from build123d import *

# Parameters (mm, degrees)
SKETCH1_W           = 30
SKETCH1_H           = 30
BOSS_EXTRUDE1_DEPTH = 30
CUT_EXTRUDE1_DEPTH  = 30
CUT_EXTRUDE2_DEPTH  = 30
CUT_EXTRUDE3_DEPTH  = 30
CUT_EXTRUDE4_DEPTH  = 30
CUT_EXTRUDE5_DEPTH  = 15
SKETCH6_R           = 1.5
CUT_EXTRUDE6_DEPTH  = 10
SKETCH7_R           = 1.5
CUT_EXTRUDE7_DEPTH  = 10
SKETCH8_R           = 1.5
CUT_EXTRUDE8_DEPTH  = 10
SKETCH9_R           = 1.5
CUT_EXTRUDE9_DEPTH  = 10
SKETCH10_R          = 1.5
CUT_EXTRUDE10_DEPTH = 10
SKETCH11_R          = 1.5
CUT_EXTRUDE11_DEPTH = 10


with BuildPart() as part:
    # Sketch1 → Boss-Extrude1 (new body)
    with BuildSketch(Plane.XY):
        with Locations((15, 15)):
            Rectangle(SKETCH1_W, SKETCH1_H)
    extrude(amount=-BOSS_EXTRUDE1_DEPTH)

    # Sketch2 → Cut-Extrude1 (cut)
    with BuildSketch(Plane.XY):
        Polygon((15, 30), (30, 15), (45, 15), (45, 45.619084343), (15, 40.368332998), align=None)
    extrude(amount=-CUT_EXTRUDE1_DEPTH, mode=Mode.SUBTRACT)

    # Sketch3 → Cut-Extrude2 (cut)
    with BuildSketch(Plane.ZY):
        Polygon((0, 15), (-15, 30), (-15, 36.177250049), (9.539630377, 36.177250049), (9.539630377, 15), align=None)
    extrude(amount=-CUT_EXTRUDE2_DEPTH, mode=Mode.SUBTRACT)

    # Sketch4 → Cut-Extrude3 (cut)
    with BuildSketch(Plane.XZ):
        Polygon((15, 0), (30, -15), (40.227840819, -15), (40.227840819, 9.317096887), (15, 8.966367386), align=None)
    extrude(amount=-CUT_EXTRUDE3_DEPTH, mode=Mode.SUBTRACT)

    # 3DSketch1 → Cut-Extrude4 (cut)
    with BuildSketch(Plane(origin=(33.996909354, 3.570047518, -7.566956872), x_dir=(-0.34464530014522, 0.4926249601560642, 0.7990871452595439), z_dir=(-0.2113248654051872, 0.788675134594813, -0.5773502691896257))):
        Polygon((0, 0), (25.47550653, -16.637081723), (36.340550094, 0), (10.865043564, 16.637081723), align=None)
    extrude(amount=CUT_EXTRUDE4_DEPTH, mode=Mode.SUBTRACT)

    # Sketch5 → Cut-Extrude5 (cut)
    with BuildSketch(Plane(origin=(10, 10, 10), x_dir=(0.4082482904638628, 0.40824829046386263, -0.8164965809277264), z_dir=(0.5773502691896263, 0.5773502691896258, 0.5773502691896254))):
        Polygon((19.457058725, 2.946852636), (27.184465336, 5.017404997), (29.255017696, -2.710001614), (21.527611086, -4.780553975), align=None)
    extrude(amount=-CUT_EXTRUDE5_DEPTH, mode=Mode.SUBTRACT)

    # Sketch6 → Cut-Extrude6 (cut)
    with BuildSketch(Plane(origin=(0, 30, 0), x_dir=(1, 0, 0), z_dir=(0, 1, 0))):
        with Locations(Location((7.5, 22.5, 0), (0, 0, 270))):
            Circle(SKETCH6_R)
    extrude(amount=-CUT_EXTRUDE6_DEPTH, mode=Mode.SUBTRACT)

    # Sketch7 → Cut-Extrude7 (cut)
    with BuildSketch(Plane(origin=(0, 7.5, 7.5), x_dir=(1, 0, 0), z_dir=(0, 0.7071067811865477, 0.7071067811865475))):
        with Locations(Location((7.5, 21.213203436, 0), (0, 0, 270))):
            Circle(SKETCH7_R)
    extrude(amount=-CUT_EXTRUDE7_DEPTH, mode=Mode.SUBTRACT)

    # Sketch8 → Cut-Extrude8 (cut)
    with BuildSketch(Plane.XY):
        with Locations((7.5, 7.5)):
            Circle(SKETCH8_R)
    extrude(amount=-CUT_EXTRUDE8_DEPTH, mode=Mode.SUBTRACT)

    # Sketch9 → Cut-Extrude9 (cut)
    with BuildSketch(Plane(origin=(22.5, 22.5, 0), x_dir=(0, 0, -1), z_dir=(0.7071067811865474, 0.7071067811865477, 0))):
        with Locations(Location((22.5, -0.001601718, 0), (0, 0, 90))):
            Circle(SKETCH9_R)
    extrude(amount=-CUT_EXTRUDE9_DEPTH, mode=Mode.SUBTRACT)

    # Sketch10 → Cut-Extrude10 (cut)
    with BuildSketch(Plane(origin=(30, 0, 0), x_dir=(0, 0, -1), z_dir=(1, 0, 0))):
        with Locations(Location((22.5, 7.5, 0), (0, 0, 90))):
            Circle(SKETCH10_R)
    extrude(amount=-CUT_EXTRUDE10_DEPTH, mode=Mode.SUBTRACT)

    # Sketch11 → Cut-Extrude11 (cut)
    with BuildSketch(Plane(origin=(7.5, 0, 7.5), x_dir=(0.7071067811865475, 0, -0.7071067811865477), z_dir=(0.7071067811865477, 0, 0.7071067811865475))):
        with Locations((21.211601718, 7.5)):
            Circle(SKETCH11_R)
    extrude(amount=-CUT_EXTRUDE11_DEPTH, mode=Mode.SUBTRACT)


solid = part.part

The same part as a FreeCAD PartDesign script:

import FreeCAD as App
import Part
import Sketcher
from FreeCAD import Vector
Q = App.Units.Quantity

doc = App.newDocument("Part")
body = doc.addObject("PartDesign::Body", "Body")

sketch1 = body.newObject("Sketcher::SketchObject", "Sketch")
sketch1.AttachmentSupport = (doc.getObject("XY_Plane"), [""])
sketch1.MapMode = "FlatFace"
sketch1.addGeometry(Part.LineSegment(Vector(0, 30, 0), Vector(0, 0, 0)), False)
sketch1.addGeometry(Part.LineSegment(Vector(0, 0, 0), Vector(30, 0, 0)), False)
sketch1.addGeometry(Part.LineSegment(Vector(30, 0, 0), Vector(30, 30, 0)), False)
sketch1.addGeometry(Part.LineSegment(Vector(30, 30, 0), Vector(0, 30, 0)), False)
sketch1.addConstraint(Sketcher.Constraint("Coincident", 0, 2, 1, 1))
sketch1.addConstraint(Sketcher.Constraint("Coincident", 1, 2, 2, 1))
sketch1.addConstraint(Sketcher.Constraint("Coincident", 2, 2, 3, 1))
sketch1.addConstraint(Sketcher.Constraint("Coincident", 3, 2, 0, 1))
sketch1.addConstraint(Sketcher.Constraint("Vertical", 0))
sketch1.addConstraint(Sketcher.Constraint("Horizontal", 1))
sketch1.addConstraint(Sketcher.Constraint("Vertical", 2))
sketch1.addConstraint(Sketcher.Constraint("Horizontal", 3))
sketch1.addConstraint(Sketcher.Constraint("Coincident", 0, 2, -1, 1))
sketch1.addConstraint(Sketcher.Constraint("Equal", 3, 0))
sketch1.addConstraint(Sketcher.Constraint("DistanceX", 1, 1, 1, 2, 30.0))
pad1 = body.newObject("PartDesign::Pad", "Pad")
pad1.Profile = sketch1
pad1.Length = 30
pad1.Reversed = True

sketch2 = body.newObject("Sketcher::SketchObject", "Sketch001")
sketch2.AttachmentSupport = (doc.getObject("XY_Plane"), [""])
sketch2.MapMode = "FlatFace"
sketch2.addGeometry(Part.LineSegment(Vector(15, 30, 0), Vector(30, 15, 0)), False)
sketch2.addGeometry(Part.LineSegment(Vector(30, 15, 0), Vector(45, 15, 0)), False)
sketch2.addGeometry(Part.LineSegment(Vector(45, 15, 0), Vector(45, 46, 0)), False)
sketch2.addGeometry(Part.LineSegment(Vector(45, 46, 0), Vector(15, 40, 0)), False)
sketch2.addGeometry(Part.LineSegment(Vector(15, 40, 0), Vector(15, 30, 0)), False)
sketch2.addConstraint(Sketcher.Constraint("Coincident", 0, 2, 1, 1))
sketch2.addConstraint(Sketcher.Constraint("Coincident", 1, 2, 2, 1))
sketch2.addConstraint(Sketcher.Constraint("Coincident", 2, 2, 3, 1))
sketch2.addConstraint(Sketcher.Constraint("Coincident", 3, 2, 4, 1))
sketch2.addConstraint(Sketcher.Constraint("Coincident", 4, 2, 0, 1))
sketch2.addConstraint(Sketcher.Constraint("Horizontal", 1))
sketch2.addConstraint(Sketcher.Constraint("Vertical", 2))
sketch2.addConstraint(Sketcher.Constraint("Vertical", 4))
sketch2.addConstraint(Sketcher.Constraint("DistanceX", 1, 1, 1, 2, 15.0))
sketch2.addConstraint(Sketcher.Constraint("Angle", 0, Q("-45 deg")))
sketch2.addConstraint(Sketcher.Constraint("DistanceX", -1, 1, 0, 2, 30.0))
sketch2.addConstraint(Sketcher.Constraint("DistanceY", -1, 1, 0, 2, 15.0))
sketch2.addConstraint(Sketcher.Constraint("DistanceX", -1, 1, 3, 2, 15.0))
sketch2.addConstraint(Sketcher.Constraint("Distance", 3, 30.45604))
sketch2.addConstraint(Sketcher.Constraint("DistanceY", 2, 1, 2, 2, 30.619084))
pocket1 = body.newObject("PartDesign::Pocket", "Pocket")
pocket1.Profile = sketch2
pocket1.Length = 30

sketch3 = body.newObject("Sketcher::SketchObject", "Sketch002")
sketch3.AttachmentSupport = (doc.getObject("YZ_Plane"), [""])
sketch3.MapMode = "FlatFace"
sketch3.addGeometry(Part.LineSegment(Vector(30, -15, 0), Vector(15, 0, 0)), False)
sketch3.addGeometry(Part.LineSegment(Vector(15, 0, 0), Vector(15, 10, 0)), False)
sketch3.addGeometry(Part.LineSegment(Vector(15, 10, 0), Vector(36, 10, 0)), False)
sketch3.addGeometry(Part.LineSegment(Vector(36, 10, 0), Vector(36, -15, 0)), False)
sketch3.addGeometry(Part.LineSegment(Vector(36, -15, 0), Vector(30, -15, 0)), False)
sketch3.addConstraint(Sketcher.Constraint("Coincident", 0, 2, 1, 1))
sketch3.addConstraint(Sketcher.Constraint("Coincident", 1, 2, 2, 1))
sketch3.addConstraint(Sketcher.Constraint("Coincident", 2, 2, 3, 1))
sketch3.addConstraint(Sketcher.Constraint("Coincident", 3, 2, 4, 1))
sketch3.addConstraint(Sketcher.Constraint("Coincident", 4, 2, 0, 1))
sketch3.addConstraint(Sketcher.Constraint("Vertical", 1))
sketch3.addConstraint(Sketcher.Constraint("Horizontal", 2))
sketch3.addConstraint(Sketcher.Constraint("Vertical", 3))
sketch3.addConstraint(Sketcher.Constraint("Horizontal", 4))
sketch3.addConstraint(Sketcher.Constraint("PointOnObject", 0, 2, -1))
sketch3.addConstraint(Sketcher.Constraint("Angle", 0, Q("135 deg")))
sketch3.addConstraint(Sketcher.Constraint("DistanceX", -1, 1, 0, 2, 15.0))
sketch3.addConstraint(Sketcher.Constraint("DistanceY", 3, 2, -1, 1, 15.0))
sketch3.addConstraint(Sketcher.Constraint("DistanceX", 2, 1, 2, 2, 21.17725))
sketch3.addConstraint(Sketcher.Constraint("DistanceY", 1, 1, 1, 2, 9.53963))
pocket2 = body.newObject("PartDesign::Pocket", "Pocket001")
pocket2.Profile = sketch3
pocket2.Length = 30
pocket2.Reversed = True

sketch4 = body.newObject("Sketcher::SketchObject", "Sketch003")
sketch4.AttachmentSupport = (doc.getObject("XZ_Plane"), [""])
sketch4.MapMode = "FlatFace"
sketch4.addGeometry(Part.LineSegment(Vector(15, 0, 0), Vector(30, -15, 0)), False)
sketch4.addGeometry(Part.LineSegment(Vector(30, -15, 0), Vector(40.227841, -15, 0)), False)
sketch4.addGeometry(Part.LineSegment(Vector(40.227841, -15, 0), Vector(40.227841, 9.317097, 0)), False)
sketch4.addGeometry(Part.LineSegment(Vector(40.227841, 9.317097, 0), Vector(15, 8.966367, 0)), False)
sketch4.addGeometry(Part.LineSegment(Vector(15, 8.966367, 0), Vector(15, 0, 0)), False)
sketch4.addConstraint(Sketcher.Constraint("Coincident", 0, 2, 1, 1))
sketch4.addConstraint(Sketcher.Constraint("Coincident", 1, 2, 2, 1))
sketch4.addConstraint(Sketcher.Constraint("Coincident", 2, 2, 3, 1))
sketch4.addConstraint(Sketcher.Constraint("Coincident", 3, 2, 4, 1))
sketch4.addConstraint(Sketcher.Constraint("Coincident", 4, 2, 0, 1))
sketch4.addConstraint(Sketcher.Constraint("Horizontal", 1))
sketch4.addConstraint(Sketcher.Constraint("Vertical", 2))
sketch4.addConstraint(Sketcher.Constraint("Vertical", 4))
sketch4.addConstraint(Sketcher.Constraint("PointOnObject", 4, 2, -1))
sketch4.addConstraint(Sketcher.Constraint("Angle", 0, Q("-45 deg")))
sketch4.addConstraint(Sketcher.Constraint("DistanceX", -1, 1, 0, 2, 30.0))
sketch4.addConstraint(Sketcher.Constraint("DistanceY", 0, 2, -1, 1, 15.0))
sketch4.addConstraint(Sketcher.Constraint("DistanceX", 1, 1, 1, 2, 10.227841))
sketch4.addConstraint(Sketcher.Constraint("Distance", 3, 25.230279))
sketch4.addConstraint(Sketcher.Constraint("DistanceY", 2, 1, 2, 2, 24.317097))
pocket3 = body.newObject("PartDesign::Pocket", "Pocket002")
pocket3.Profile = sketch4
pocket3.Length = 30

sketch5 = body.newObject("Sketcher::SketchObject", "Sketch004")
sketch5.Placement = App.Placement(Vector(33.996909, 3.570048, -7.566957), App.Rotation(Vector(-0.3446453, 0.49262496, 0.799087145), Vector(0.914637315, 0.36784804, 0.167709275), Vector(-0.211324865, 0.788675135, -0.577350269), "ZXY"))
sketch5.addGeometry(Part.LineSegment(Vector(0, 0, 0), Vector(25, -17, 0)), False)
sketch5.addGeometry(Part.LineSegment(Vector(25, -17, 0), Vector(36, 0, 0)), False)
sketch5.addGeometry(Part.LineSegment(Vector(36, 0, 0), Vector(11, 17, 0)), False)
sketch5.addGeometry(Part.LineSegment(Vector(11, 17, 0), Vector(0, 0, 0)), False)
sketch5.addConstraint(Sketcher.Constraint("Coincident", 0, 2, 1, 1))
sketch5.addConstraint(Sketcher.Constraint("Coincident", 1, 2, 2, 1))
sketch5.addConstraint(Sketcher.Constraint("Coincident", 2, 2, 3, 1))
sketch5.addConstraint(Sketcher.Constraint("Coincident", 3, 2, 0, 1))
sketch5.addConstraint(Sketcher.Constraint("Coincident", 3, 2, -1, 1))
sketch5.addConstraint(Sketcher.Constraint("PointOnObject", 1, 2, -1))
sketch5.addConstraint(Sketcher.Constraint("Perpendicular", 0, 1))
sketch5.addConstraint(Sketcher.Constraint("Perpendicular", 1, 2))
sketch5.addConstraint(Sketcher.Constraint("Perpendicular", 2, 3))
sketch5.addConstraint(Sketcher.Constraint("Distance", 0, 30.426862))
sketch5.addConstraint(Sketcher.Constraint("DistanceY", 0, 2, -1, 1, 16.637082))
pocket4 = body.newObject("PartDesign::Pocket", "Pocket003")
pocket4.Profile = sketch5
pocket4.Length = 30
pocket4.Reversed = True

sketch6 = body.newObject("Sketcher::SketchObject", "Sketch005")
sketch6.Placement = App.Placement(Vector(10, 10, 10), App.Rotation(Vector(0.40824829, 0.40824829, -0.816496581), Vector(-0.707106781, 0.707106781, 0), Vector(0.577350269, 0.577350269, 0.577350269), "ZXY"))
sketch6.addGeometry(Part.LineSegment(Vector(27, 5, 0), Vector(19, 3, 0)), False)
sketch6.addGeometry(Part.LineSegment(Vector(19, 3, 0), Vector(22, -5, 0)), False)
sketch6.addGeometry(Part.LineSegment(Vector(22, -5, 0), Vector(29, -3, 0)), False)
sketch6.addGeometry(Part.LineSegment(Vector(29, -3, 0), Vector(27, 5, 0)), False)
sketch6.addConstraint(Sketcher.Constraint("Coincident", 0, 2, 1, 1))
sketch6.addConstraint(Sketcher.Constraint("Coincident", 1, 2, 2, 1))
sketch6.addConstraint(Sketcher.Constraint("Coincident", 2, 2, 3, 1))
sketch6.addConstraint(Sketcher.Constraint("Coincident", 3, 2, 0, 1))
sketch6.addConstraint(Sketcher.Constraint("Perpendicular", 0, 1))
sketch6.addConstraint(Sketcher.Constraint("Perpendicular", 1, 2))
sketch6.addConstraint(Sketcher.Constraint("Perpendicular", 2, 3))
sketch6.addConstraint(Sketcher.Constraint("Equal", 0, 1))
sketch6.addConstraint(Sketcher.Constraint("Angle", 0, Q("-165 deg")))
sketch6.addConstraint(Sketcher.Constraint("Distance", 0, 8.0))
sketch6.addConstraint(Sketcher.Constraint("DistanceY", 2, 2, -1, 1, 2.710002))
sketch6.addConstraint(Sketcher.Constraint("DistanceX", -1, 1, 0, 2, 19.457059))
pocket5 = body.newObject("PartDesign::Pocket", "Pocket004")
pocket5.Profile = sketch6
pocket5.Length = 15

sketch7 = body.newObject("Sketcher::SketchObject", "Sketch006")
sketch7.AttachmentSupport = (doc.getObject("XZ_Plane"), [""])
sketch7.MapMode = "FlatFace"
sketch7.AttachmentOffset = App.Placement(Vector(0, 0, -30), App.Rotation())
sketch7.addGeometry(Part.Circle(Vector(7.5, -22.5, 0), Vector(0, 0, 1), 1.5), False)
sketch7.addConstraint(Sketcher.Constraint("Diameter", 0, 3.0))
sketch7.addConstraint(Sketcher.Constraint("DistanceX", -1, 1, 0, 3, 7.5))
sketch7.addConstraint(Sketcher.Constraint("DistanceY", 0, 3, -1, 1, 22.5))
pocket6 = body.newObject("PartDesign::Pocket", "Pocket005")
pocket6.Profile = sketch7
pocket6.Length = 10
pocket6.Reversed = True

sketch8 = body.newObject("Sketcher::SketchObject", "Sketch007")
sketch8.Placement = App.Placement(Vector(0, 7.5, 7.5), App.Rotation(Vector(1, 0, 0), Vector(0, 0.707106781, -0.707106781), Vector(0, 0.707106781, 0.707106781), "ZXY"))
sketch8.addGeometry(Part.Circle(Vector(7.5, 21.2, 0), Vector(0, 0, 1), 1.5), False)
sketch8.addConstraint(Sketcher.Constraint("Diameter", 0, 3.0))
sketch8.addConstraint(Sketcher.Constraint("DistanceX", -1, 1, 0, 3, 7.5))
sketch8.addConstraint(Sketcher.Constraint("DistanceY", -1, 1, 0, 3, 21.213203))
pocket7 = body.newObject("PartDesign::Pocket", "Pocket006")
pocket7.Profile = sketch8
pocket7.Length = 10

sketch9 = body.newObject("Sketcher::SketchObject", "Sketch008")
sketch9.AttachmentSupport = (doc.getObject("XY_Plane"), [""])
sketch9.MapMode = "FlatFace"
sketch9.addGeometry(Part.Circle(Vector(7.5, 7.5, 0), Vector(0, 0, 1), 1.5), False)
sketch9.addConstraint(Sketcher.Constraint("Diameter", 0, 3.0))
sketch9.addConstraint(Sketcher.Constraint("DistanceX", -1, 1, 0, 3, 7.5))
sketch9.addConstraint(Sketcher.Constraint("DistanceY", -1, 1, 0, 3, 7.5))
pocket8 = body.newObject("PartDesign::Pocket", "Pocket007")
pocket8.Profile = sketch9
pocket8.Length = 10

sketch10 = body.newObject("Sketcher::SketchObject", "Sketch009")
sketch10.Placement = App.Placement(Vector(22.5, 22.5, 0), App.Rotation(Vector(0, 0, -1), Vector(-0.707106781, 0.707106781, 0), Vector(0.707106781, 0.707106781, 0), "ZXY"))
sketch10.addGeometry(Part.Circle(Vector(22.5, 0, 0), Vector(0, 0, 1), 1.5), False)
sketch10.addConstraint(Sketcher.Constraint("Diameter", 0, 3.0))
sketch10.addConstraint(Sketcher.Constraint("DistanceX", -1, 1, 0, 3, 22.5))
sketch10.addConstraint(Sketcher.Constraint("DistanceY", 0, 3, -1, 1, 0.001602))
pocket9 = body.newObject("PartDesign::Pocket", "Pocket008")
pocket9.Profile = sketch10
pocket9.Length = 10

sketch11 = body.newObject("Sketcher::SketchObject", "Sketch010")
sketch11.AttachmentSupport = (doc.getObject("YZ_Plane"), [""])
sketch11.MapMode = "FlatFace"
sketch11.AttachmentOffset = App.Placement(Vector(0, 0, 30), App.Rotation())
sketch11.addGeometry(Part.Circle(Vector(7.5, -22.5, 0), Vector(0, 0, 1), 1.5), False)
sketch11.addConstraint(Sketcher.Constraint("Diameter", 0, 3.0))
sketch11.addConstraint(Sketcher.Constraint("DistanceX", -1, 1, 0, 3, 7.5))
sketch11.addConstraint(Sketcher.Constraint("DistanceY", 0, 3, -1, 1, 22.5))
pocket10 = body.newObject("PartDesign::Pocket", "Pocket009")
pocket10.Profile = sketch11
pocket10.Length = 10

sketch12 = body.newObject("Sketcher::SketchObject", "Sketch011")
sketch12.Placement = App.Placement(Vector(7.5, 0, 7.5), App.Rotation(Vector(0.707106781, 0, -0.707106781), Vector(0, 0.999999999, 0), Vector(0.707106781, 0, 0.707106781), "ZXY"))
sketch12.addGeometry(Part.Circle(Vector(21.2, 7.5, 0), Vector(0, 0, 1), 1.5), False)
sketch12.addConstraint(Sketcher.Constraint("Diameter", 0, 3.0))
sketch12.addConstraint(Sketcher.Constraint("DistanceY", -1, 1, 0, 3, 7.5))
sketch12.addConstraint(Sketcher.Constraint("DistanceX", -1, 1, 0, 3, 21.211602))
pocket11 = body.newObject("PartDesign::Pocket", "Pocket010")
pocket11.Profile = sketch12
pocket11.Length = 10

doc.recompute()
